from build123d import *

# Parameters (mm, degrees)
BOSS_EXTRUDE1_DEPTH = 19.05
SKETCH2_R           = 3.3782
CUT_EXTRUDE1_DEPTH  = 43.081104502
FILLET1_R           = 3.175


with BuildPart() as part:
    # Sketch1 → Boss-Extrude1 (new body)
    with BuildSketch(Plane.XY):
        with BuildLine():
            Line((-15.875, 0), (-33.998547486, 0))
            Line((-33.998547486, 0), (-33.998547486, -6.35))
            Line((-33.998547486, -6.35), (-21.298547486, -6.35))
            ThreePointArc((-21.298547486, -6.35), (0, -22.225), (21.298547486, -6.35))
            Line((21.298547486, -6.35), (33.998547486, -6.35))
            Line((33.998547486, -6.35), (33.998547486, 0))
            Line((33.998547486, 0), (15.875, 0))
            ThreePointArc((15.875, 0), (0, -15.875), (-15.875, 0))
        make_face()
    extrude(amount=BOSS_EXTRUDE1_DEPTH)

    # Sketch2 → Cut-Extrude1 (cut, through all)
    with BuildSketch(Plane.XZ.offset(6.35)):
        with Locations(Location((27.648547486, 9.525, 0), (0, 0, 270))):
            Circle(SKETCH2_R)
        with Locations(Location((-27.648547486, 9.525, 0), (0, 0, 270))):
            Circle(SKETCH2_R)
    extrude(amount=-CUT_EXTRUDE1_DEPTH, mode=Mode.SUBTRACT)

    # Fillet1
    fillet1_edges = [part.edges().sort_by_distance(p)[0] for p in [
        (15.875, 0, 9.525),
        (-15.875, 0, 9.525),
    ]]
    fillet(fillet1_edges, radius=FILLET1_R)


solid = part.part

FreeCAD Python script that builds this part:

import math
import FreeCAD as App
import Part
import Sketcher
from FreeCAD import Vector
Q = App.Units.Quantity


def edges_at(feature, points):
    """Names of the edges that pass closest to the given points."""
    edges = feature.Shape.Edges
    near = lambda p: min(range(len(edges)), key=lambda i: edges[i].distToShape(Part.Vertex(*p))[0])
    return sorted({f"Edge{near(p) + 1}" for p in points})

doc = App.newDocument("Part")
body = doc.addObject("PartDesign::Body", "Body")

sketch1 = body.newObject("Sketcher::SketchObject", "Sketch")
sketch1.AttachmentSupport = (doc.getObject("XY_Plane"), [""])
sketch1.MapMode = "FlatFace"
sketch1.addGeometry([
    Part.LineSegment(Vector(-16, 0, 0), Vector(-34, 0, 0)),
    Part.LineSegment(Vector(-34, 0, 0), Vector(-34, -6, 0)),
    Part.LineSegment(Vector(-34, -6, 0), Vector(-21, -6, 0)),
    Part.ArcOfCircle(Part.Circle(Vector(0, 0, 0), Vector(0, 0, 1), 22), math.radians(-163), math.radians(-17)),
    Part.LineSegment(Vector(21, -6, 0), Vector(34, -6, 0)),
    Part.LineSegment(Vector(34, -6, 0), Vector(34, 0, 0)),
    Part.LineSegment(Vector(34, 0, 0), Vector(16, 0, 0)),
    Part.ArcOfCircle(Part.Circle(Vector(0, 0, 0), Vector(0, 0, 1), 16), math.radians(180), math.radians(360)),
], False)
sketch1.addConstraint([
    Sketcher.Constraint("Coincident", 0, 2, 1, 1),
    Sketcher.Constraint("Coincident", 1, 2, 2, 1),
    Sketcher.Constraint("Coincident", 2, 2, 3, 1),
    Sketcher.Constraint("Coincident", 3, 2, 4, 1),
    Sketcher.Constraint("Coincident", 4, 2, 5, 1),
    Sketcher.Constraint("Coincident", 5, 2, 6, 1),
    Sketcher.Constraint("Coincident", 6, 2, 7, 2),
    Sketcher.Constraint("Coincident", 7, 1, 0, 1),
    Sketcher.Constraint("Horizontal", 0),
    Sketcher.Constraint("Vertical", 1),
    Sketcher.Constraint("Horizontal", 2),
    Sketcher.Constraint("Horizontal", 4),
    Sketcher.Constraint("Vertical", 5),
    Sketcher.Constraint("Horizontal", 6),
    Sketcher.Constraint("Coincident", 3, 3, -1, 1),
    Sketcher.Constraint("Coincident", 7, 3, -1, 1),
    Sketcher.Constraint("Symmetric", 0, 2, 5, 2, -1, 1),
    Sketcher.Constraint("PointOnObject", 0, 2, -1),
    Sketcher.Constraint("Horizontal", 2, 2, 3, 2),
    Sketcher.Constraint("DistanceX", 2, 1, 2, 2, Q("0.5 in")),
    Sketcher.Constraint("Radius", 3, Q("0.875 in")),
    Sketcher.Constraint("Radius", 7, Q("0.625 in")),
    Sketcher.Constraint("DistanceY", 1, 2, 1, 1, Q("0.25 in")),
])
pad1 = body.newObject("PartDesign::Pad", "Pad")
pad1.Profile = sketch1
pad1.Length = Q("0.75 in")

sketch2 = body.newObject("Sketcher::SketchObject", "Sketch001")
sketch2.AttachmentSupport = (doc.getObject("XZ_Plane"), [""])
sketch2.MapMode = "FlatFace"
sketch2.AttachmentOffset = App.Placement(Vector(0, 0, 0.25 * 25.4), App.Rotation())
sketch2.addGeometry([
    Part.Circle(Vector(27.6, 9.5, 0), Vector(0, 0, 1), 3.4),
    Part.Circle(Vector(-27.6, 9.5, 0), Vector(0, 0, 1), 3.4),
], False)
sketch2.addConstraint([
    Sketcher.Constraint("Equal", 0, 1),
    Sketcher.Constraint("Symmetric", 0, 3, 1, 3, -2),
    Sketcher.Constraint("Diameter", 0, Q("0.266 in")),
    Sketcher.Constraint("DistanceY", -1, 1, 0, 3, Q("0.375 in")),
    Sketcher.Constraint("DistanceX", -1, 1, 0, 3, 27.648547),
])
pocket1 = body.newObject("PartDesign::Pocket", "Pocket")
pocket1.Profile = sketch2
pocket1.Type = "ThroughAll"
doc.recompute()

fillet = body.newObject("PartDesign::Fillet", "Fillet")
fillet.Base = (pocket1, edges_at(pocket1, [(15.875, 0, 9.525), (-15.875, 0, 9.525)]))
fillet.Radius = Q("0.125 in")

doc.recompute()
